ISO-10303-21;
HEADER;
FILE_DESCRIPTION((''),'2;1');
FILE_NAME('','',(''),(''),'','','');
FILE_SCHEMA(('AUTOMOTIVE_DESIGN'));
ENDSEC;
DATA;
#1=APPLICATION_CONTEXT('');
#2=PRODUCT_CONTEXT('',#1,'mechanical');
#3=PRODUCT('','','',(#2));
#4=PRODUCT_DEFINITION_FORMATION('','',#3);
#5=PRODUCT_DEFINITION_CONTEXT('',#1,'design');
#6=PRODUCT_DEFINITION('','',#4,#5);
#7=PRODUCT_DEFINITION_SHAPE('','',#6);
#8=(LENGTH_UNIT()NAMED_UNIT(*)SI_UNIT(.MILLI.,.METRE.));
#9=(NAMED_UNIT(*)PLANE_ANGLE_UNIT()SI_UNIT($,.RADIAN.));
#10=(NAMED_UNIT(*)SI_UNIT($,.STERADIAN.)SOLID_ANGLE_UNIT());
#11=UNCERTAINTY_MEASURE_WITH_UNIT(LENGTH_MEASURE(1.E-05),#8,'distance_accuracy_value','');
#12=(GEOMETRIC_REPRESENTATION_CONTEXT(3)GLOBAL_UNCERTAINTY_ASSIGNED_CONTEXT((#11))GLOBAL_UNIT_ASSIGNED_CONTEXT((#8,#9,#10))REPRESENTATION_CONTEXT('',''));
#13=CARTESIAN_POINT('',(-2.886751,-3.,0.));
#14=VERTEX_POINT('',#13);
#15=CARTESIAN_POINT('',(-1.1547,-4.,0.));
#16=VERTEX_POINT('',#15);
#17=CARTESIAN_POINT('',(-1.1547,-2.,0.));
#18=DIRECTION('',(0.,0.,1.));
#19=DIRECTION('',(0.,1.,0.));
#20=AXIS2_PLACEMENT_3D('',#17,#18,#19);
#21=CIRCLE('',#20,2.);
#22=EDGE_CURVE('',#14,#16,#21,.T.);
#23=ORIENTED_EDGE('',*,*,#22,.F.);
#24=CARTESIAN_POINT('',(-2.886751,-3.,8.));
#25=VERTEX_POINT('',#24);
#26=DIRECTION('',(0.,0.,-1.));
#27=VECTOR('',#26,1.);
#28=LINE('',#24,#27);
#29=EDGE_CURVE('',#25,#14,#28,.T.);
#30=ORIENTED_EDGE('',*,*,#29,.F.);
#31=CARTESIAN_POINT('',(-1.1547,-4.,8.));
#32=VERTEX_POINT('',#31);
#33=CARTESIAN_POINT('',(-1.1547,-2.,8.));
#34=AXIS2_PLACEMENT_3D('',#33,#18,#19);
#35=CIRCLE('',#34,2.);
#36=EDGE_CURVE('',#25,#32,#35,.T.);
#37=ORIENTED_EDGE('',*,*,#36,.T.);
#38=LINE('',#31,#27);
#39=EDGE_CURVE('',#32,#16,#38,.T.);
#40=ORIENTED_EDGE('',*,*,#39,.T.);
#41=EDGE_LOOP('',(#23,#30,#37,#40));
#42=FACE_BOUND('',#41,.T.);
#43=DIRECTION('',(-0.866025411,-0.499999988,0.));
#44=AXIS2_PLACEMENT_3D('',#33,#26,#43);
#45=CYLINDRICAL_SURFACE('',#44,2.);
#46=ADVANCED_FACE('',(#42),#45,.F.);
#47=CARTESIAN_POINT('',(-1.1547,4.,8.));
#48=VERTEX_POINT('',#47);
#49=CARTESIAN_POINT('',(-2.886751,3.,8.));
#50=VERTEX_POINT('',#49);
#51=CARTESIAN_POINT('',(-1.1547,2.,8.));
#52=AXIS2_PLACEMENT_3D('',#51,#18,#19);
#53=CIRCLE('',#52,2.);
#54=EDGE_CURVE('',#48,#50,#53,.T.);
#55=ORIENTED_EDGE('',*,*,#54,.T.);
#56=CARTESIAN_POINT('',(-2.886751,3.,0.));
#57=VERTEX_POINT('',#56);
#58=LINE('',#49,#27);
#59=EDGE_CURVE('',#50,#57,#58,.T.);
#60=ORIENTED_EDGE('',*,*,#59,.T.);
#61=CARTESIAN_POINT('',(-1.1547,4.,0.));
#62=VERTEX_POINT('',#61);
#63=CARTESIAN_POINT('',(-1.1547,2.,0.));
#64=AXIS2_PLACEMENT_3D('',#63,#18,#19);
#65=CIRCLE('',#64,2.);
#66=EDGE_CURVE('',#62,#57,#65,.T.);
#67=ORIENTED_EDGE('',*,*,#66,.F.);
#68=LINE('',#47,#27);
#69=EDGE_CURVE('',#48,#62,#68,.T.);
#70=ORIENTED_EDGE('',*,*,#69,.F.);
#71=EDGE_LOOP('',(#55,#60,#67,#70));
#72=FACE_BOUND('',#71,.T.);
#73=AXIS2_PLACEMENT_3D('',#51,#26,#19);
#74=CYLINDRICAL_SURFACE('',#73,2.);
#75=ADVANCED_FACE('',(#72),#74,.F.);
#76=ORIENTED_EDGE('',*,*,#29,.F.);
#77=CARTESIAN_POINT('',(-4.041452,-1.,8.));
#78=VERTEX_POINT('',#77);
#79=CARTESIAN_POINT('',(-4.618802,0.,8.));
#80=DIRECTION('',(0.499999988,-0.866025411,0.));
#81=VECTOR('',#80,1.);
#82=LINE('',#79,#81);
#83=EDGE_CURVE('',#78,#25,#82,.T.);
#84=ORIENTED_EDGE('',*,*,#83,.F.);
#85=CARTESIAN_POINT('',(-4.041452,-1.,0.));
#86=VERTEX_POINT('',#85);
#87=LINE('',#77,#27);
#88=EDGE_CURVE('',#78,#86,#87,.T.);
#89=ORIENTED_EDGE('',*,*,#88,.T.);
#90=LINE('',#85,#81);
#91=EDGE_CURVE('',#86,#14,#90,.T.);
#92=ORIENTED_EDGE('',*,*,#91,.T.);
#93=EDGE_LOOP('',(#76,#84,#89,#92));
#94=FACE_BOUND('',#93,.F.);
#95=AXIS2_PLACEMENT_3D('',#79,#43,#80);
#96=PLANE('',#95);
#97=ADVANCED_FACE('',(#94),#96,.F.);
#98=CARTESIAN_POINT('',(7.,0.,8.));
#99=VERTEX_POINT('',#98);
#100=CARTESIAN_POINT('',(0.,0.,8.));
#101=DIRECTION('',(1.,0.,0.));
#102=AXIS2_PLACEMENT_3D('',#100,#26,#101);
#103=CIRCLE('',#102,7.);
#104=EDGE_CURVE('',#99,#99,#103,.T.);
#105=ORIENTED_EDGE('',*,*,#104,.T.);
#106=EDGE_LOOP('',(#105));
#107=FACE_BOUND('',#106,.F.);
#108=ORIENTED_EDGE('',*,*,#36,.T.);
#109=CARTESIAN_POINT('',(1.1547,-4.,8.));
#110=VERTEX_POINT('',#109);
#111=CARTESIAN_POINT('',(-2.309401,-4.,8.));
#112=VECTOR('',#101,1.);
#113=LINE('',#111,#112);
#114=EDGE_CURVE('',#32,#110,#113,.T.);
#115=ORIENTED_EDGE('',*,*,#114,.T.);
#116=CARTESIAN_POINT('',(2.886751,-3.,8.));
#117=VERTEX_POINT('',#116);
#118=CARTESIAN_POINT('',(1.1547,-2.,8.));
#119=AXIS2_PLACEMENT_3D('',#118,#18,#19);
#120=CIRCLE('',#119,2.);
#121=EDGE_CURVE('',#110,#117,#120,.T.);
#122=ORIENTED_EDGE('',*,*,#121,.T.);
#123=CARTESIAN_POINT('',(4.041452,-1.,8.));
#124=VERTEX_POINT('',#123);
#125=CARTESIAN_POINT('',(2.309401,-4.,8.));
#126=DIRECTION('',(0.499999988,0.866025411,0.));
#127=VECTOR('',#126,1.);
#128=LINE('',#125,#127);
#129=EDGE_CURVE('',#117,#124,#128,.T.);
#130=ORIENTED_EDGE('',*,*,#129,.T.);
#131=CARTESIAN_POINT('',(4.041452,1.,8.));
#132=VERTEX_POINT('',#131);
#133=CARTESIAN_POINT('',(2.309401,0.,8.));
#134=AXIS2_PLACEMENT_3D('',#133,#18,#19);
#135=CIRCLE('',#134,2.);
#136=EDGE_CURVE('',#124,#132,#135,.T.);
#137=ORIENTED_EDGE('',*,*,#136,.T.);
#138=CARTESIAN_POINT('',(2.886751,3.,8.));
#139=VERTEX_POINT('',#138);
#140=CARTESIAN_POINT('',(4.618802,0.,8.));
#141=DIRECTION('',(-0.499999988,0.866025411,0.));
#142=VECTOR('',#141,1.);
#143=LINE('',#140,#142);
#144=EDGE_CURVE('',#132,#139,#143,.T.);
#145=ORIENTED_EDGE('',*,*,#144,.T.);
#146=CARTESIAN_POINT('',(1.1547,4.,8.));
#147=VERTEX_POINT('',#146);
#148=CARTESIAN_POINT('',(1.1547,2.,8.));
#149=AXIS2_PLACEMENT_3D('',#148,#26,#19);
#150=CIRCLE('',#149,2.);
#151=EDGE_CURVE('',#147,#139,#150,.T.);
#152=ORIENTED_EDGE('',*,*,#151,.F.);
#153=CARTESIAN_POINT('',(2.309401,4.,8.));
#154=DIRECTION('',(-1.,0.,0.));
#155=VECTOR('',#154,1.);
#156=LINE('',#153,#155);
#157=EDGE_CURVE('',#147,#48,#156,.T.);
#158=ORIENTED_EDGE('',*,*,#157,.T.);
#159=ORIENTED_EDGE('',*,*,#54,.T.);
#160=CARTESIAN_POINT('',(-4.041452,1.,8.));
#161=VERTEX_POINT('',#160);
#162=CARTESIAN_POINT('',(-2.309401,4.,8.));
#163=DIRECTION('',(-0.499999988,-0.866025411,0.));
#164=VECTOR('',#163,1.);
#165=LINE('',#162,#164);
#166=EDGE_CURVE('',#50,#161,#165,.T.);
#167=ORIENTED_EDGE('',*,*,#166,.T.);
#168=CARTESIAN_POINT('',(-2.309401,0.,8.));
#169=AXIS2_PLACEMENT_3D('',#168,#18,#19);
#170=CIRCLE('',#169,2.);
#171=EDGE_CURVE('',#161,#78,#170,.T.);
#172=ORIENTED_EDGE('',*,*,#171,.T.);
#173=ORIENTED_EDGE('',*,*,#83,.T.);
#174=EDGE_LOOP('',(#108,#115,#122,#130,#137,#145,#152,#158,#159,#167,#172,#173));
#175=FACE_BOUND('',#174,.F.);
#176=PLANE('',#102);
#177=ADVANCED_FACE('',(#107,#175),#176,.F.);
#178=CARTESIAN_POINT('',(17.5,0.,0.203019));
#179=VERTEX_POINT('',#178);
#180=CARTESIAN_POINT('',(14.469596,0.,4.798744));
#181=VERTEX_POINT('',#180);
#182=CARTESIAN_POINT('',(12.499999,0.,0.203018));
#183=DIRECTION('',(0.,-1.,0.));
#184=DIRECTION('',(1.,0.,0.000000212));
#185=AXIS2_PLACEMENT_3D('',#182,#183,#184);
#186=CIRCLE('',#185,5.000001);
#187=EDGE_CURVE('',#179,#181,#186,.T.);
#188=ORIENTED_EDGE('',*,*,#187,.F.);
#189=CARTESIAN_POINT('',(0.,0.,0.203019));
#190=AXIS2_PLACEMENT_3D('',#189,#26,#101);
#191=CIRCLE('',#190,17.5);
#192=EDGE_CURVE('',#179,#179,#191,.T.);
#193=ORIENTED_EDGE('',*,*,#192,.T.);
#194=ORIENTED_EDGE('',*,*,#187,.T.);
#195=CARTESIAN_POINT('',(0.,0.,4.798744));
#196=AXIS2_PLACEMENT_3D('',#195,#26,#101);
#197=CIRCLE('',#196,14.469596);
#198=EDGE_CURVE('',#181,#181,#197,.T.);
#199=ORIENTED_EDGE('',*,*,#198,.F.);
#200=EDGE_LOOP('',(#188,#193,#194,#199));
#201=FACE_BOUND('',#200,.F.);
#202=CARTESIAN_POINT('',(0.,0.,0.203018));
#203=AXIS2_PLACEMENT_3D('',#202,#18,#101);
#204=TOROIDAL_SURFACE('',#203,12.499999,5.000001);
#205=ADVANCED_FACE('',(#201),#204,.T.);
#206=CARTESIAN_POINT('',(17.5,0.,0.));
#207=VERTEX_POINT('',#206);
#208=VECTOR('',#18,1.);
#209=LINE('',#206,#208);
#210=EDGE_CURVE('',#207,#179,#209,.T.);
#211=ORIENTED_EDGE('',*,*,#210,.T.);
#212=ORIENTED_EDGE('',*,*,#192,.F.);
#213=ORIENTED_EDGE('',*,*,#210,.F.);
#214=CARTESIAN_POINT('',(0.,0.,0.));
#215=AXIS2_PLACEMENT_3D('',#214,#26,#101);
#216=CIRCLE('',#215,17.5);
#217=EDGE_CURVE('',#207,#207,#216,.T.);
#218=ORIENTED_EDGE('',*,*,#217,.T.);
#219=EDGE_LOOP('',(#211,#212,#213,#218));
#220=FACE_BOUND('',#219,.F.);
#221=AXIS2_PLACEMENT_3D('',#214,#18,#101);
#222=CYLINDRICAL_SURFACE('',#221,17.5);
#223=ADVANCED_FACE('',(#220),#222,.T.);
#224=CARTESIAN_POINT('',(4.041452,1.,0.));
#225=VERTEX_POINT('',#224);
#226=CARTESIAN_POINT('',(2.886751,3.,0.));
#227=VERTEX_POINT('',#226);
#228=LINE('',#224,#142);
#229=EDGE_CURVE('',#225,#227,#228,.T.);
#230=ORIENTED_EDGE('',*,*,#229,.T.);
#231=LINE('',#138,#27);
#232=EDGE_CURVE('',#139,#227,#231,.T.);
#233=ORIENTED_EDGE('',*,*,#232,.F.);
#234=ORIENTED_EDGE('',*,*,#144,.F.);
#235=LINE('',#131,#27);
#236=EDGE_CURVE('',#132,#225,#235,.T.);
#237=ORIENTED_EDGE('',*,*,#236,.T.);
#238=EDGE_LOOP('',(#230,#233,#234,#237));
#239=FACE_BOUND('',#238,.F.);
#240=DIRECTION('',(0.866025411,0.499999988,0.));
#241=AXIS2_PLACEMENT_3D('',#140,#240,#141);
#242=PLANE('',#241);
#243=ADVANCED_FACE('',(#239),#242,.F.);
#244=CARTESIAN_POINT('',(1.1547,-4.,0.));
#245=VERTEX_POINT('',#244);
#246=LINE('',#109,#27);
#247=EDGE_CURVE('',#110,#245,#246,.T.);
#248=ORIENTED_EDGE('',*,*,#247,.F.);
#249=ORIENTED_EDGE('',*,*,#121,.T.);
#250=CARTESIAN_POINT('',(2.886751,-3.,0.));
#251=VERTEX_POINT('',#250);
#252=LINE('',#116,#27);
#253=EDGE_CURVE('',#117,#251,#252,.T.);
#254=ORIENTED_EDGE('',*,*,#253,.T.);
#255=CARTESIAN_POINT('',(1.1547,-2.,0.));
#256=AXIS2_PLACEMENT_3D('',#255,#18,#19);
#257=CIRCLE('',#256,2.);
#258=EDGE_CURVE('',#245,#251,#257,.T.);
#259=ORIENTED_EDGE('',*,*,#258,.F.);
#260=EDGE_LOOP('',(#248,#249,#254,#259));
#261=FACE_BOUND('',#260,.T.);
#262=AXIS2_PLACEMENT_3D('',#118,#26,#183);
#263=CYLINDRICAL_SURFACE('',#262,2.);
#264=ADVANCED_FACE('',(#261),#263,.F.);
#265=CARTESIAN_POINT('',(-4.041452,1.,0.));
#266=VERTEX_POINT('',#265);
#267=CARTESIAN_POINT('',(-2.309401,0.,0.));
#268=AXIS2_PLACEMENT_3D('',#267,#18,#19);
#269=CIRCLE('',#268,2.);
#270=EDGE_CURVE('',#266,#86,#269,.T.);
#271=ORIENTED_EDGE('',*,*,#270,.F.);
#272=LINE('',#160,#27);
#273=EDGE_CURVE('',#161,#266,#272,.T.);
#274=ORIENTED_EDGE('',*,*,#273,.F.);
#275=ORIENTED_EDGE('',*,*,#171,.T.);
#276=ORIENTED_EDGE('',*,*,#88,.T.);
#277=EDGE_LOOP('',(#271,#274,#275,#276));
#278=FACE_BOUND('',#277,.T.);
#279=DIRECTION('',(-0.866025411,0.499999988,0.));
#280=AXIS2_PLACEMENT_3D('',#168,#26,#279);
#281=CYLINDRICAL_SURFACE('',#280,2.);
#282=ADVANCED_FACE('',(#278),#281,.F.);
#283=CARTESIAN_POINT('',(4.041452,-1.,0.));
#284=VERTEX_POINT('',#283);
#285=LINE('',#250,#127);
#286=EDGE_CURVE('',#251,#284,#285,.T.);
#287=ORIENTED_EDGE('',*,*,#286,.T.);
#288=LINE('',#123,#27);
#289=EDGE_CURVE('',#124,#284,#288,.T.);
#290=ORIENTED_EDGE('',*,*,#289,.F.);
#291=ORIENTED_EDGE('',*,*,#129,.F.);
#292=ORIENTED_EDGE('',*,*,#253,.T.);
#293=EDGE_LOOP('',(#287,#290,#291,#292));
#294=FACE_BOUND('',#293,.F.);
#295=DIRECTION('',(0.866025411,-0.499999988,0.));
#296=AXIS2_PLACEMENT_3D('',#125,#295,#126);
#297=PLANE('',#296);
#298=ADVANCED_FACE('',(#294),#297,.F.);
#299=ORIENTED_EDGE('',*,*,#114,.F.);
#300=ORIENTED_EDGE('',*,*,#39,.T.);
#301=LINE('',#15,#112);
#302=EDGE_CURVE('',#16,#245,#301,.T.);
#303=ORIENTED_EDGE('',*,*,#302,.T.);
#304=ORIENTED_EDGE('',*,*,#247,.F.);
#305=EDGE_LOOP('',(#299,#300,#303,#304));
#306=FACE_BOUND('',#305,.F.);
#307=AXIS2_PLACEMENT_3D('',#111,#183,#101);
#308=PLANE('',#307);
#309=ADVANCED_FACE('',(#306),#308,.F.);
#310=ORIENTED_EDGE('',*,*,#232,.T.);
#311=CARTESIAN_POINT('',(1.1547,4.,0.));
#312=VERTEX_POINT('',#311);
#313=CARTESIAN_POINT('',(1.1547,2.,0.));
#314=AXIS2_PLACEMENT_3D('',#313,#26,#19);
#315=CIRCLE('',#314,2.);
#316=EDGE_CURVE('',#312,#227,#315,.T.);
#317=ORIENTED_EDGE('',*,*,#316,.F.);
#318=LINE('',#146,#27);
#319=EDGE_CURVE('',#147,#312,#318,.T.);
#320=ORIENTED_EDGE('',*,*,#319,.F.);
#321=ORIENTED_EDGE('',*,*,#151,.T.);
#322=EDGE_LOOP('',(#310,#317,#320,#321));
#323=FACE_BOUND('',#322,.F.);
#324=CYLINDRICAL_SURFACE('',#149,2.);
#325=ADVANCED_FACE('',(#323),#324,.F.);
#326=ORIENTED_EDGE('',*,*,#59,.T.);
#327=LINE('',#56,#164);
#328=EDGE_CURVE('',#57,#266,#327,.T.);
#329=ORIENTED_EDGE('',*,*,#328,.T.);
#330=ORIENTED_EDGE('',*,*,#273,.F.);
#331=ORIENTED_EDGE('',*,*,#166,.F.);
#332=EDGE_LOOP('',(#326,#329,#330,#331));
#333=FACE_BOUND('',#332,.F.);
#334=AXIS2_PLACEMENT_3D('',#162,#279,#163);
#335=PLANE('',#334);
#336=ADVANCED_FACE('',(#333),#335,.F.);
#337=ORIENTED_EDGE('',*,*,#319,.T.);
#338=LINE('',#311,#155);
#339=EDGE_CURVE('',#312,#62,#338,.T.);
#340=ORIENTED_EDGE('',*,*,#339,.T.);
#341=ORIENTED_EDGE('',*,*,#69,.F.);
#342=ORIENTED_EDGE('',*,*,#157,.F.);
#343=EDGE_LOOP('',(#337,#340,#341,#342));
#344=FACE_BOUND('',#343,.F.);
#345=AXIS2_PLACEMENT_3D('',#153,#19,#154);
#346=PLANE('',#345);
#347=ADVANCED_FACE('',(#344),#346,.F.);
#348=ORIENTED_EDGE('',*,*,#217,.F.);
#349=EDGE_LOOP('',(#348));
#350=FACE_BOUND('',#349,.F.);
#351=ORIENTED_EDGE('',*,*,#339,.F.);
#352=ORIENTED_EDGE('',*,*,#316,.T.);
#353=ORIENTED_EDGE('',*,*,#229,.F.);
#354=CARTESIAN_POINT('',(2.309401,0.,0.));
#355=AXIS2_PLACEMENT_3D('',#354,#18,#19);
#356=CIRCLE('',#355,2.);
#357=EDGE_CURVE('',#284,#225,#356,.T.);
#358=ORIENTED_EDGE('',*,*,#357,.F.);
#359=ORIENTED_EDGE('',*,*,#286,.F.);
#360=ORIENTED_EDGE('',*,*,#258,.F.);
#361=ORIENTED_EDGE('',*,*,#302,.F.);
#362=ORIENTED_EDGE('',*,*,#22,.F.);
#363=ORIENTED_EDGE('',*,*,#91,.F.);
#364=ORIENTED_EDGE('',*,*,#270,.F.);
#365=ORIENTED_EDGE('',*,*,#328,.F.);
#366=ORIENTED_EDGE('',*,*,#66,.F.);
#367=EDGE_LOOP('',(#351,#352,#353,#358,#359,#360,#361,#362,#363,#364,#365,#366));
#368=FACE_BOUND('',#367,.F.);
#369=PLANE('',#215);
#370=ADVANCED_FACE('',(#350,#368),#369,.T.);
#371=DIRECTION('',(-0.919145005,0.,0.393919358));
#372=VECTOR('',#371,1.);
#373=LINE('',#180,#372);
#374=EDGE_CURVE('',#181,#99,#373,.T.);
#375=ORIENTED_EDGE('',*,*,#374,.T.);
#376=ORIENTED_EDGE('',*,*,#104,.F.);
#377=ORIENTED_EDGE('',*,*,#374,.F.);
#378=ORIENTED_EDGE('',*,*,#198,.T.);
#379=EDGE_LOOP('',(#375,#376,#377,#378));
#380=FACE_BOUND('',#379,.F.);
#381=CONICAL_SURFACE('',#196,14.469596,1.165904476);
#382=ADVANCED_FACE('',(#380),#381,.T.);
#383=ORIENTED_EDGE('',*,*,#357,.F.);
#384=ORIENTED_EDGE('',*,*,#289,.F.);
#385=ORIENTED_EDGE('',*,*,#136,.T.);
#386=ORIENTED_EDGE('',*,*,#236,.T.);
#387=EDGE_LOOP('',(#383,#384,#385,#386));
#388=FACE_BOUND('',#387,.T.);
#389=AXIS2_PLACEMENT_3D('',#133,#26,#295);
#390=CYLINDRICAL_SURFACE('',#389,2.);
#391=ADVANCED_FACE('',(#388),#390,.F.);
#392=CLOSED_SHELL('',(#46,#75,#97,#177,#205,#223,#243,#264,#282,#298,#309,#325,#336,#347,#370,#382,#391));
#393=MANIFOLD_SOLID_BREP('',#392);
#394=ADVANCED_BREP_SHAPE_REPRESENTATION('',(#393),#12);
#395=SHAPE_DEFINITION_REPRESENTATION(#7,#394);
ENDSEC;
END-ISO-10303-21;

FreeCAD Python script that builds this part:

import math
import FreeCAD as App
import Part
import Sketcher
Q = App.Units.Quantity


def edges_at(feature, points):
    """Names of the edges that pass closest to the given points."""
    edges = feature.Shape.Edges
    near = lambda p: min(range(len(edges)), key=lambda i: edges[i].distToShape(Part.Vertex(*p))[0])
    return sorted({f"Edge{near(p) + 1}" for p in points})


def add_polygon(sketch, points):
    """Adds a closed chain of lines whose ends are joined by coincident constraints."""
    first, n = sketch.GeometryCount, len(points)
    for a, b in zip(points, points[1:] + points[:1]):
        sketch.addGeometry(Part.LineSegment(App.Vector(*a, 0), App.Vector(*b, 0)), False)
    for i in range(n):
        sketch.addConstraint(Sketcher.Constraint("Coincident", first + i, 2, first + (i + 1) % n, 1))

doc = App.newDocument("Part")
params = doc.addObject("Spreadsheet::Sheet", "Params")
for row, (alias, value) in enumerate([
    ("sketch1_radius", "5.000001 mm"),
    ("sketch1_width", "7 mm"),
    ("sketch1_height", "8 mm"),
    ("sketch1_width2", "17.5 mm"),
    ("revolution_angle", "360 deg"),
    ("pocket1_length", "25 mm"),
    ("fillet_radius", "2 mm"),
], start=1):
    params.set(f"A{row}", alias)
    params.set(f"B{row}", "=" + value)
    params.setAlias(f"B{row}", alias)

body = doc.addObject("PartDesign::Body", "Body")

# Sketch on XZ plane
sketch1 = doc.addObject("Sketcher::SketchObject", "Sketch")
body.addObject(sketch1)
sketch1.AttachmentSupport = (doc.XZ_Plane, [""])
sketch1.MapMode = "FlatFace"
sketch1.addGeometry([
    Part.LineSegment(App.Vector(0, 8, 0), App.Vector(0, 0, 0)),  # 0
    Part.LineSegment(App.Vector(0, 0, 0), App.Vector(17.5, 0, 0)),  # 1
    Part.LineSegment(App.Vector(17.5, 0, 0), App.Vector(17.5, 0.2, 0)),  # 2
    Part.ArcOfCircle(Part.Circle(App.Vector(12.5, 0.2, 0), App.Vector(0, 0, 1), 5), math.radians(0), math.radians(67)),  # 3
    Part.LineSegment(App.Vector(14.47, 4.8, 0), App.Vector(7, 8, 0)),  # 4
    Part.LineSegment(App.Vector(7, 8, 0), App.Vector(0, 8, 0)),  # 5
], False)
sketch1.addConstraint([
    Sketcher.Constraint("Coincident", 0, 2, 1, 1),
    Sketcher.Constraint("Coincident", 1, 2, 2, 1),
    Sketcher.Constraint("Tangent", 2, 2, 3, 1),
    Sketcher.Constraint("Tangent", 3, 2, 4, 1),
    Sketcher.Constraint("Coincident", 4, 2, 5, 1),
    Sketcher.Constraint("Coincident", 5, 2, 0, 1),
    Sketcher.Constraint("Vertical", 0),
    Sketcher.Constraint("Horizontal", 1),
    Sketcher.Constraint("Vertical", 2),
    Sketcher.Constraint("Horizontal", 5),
    Sketcher.Constraint("Coincident", 0, 2, -1, 1),
    Sketcher.Constraint("Radius", 3, Q("5.000001 mm")),
    Sketcher.Constraint("DistanceX", 5, 2, 5, 1, Q("7 mm")),
    Sketcher.Constraint("DistanceY", 0, 2, 0, 1, Q("8 mm")),
    Sketcher.Constraint("DistanceX", 1, 1, 1, 2, Q("17.5 mm")),
    Sketcher.Constraint("DistanceY", 2, 1, 2, 2, Q("0.203019 mm")),
])
sketch1.setExpression("Constraints[11]", "Params.sketch1_radius")
sketch1.setExpression("Constraints[12]", "Params.sketch1_width")
sketch1.setExpression("Constraints[13]", "Params.sketch1_height")
sketch1.setExpression("Constraints[14]", "Params.sketch1_width2")
revolution = doc.addObject("PartDesign::Revolution", "Revolution")
body.addObject(revolution)
revolution.Profile = sketch1
revolution.ReferenceAxis = (sketch1, ["V_Axis"])
revolution.setExpression("Angle", "Params.revolution_angle")

# Sketch on XY plane
sketch2 = doc.addObject("Sketcher::SketchObject", "Sketch001")
body.addObject(sketch2)
sketch2.AttachmentSupport = (doc.XY_Plane, [""])
sketch2.MapMode = "FlatFace"
sketch2.AttachmentOffset = App.Placement(App.Vector(0, 0, 8), App.Rotation())
add_polygon(sketch2, [(2.3, 4), (-2.3, 4), (-4.6, 0), (-2.3, -4), (2.3, -4), (4.6, 0)])  # lines 0-5
sketch2.addConstraint([
    Sketcher.Constraint("Horizontal", 0),
    Sketcher.Constraint("Horizontal", 3),
    Sketcher.Constraint("Symmetric", 0, 2, 3, 2, -1, 1),
    Sketcher.Constraint("Symmetric", 1, 2, 4, 2, -1, 1),
    Sketcher.Constraint("PointOnObject", 1, 2, -1),
    Sketcher.Constraint("Parallel", 2, 5),
    Sketcher.Constraint("Vertical", 0, 2, 2, 2),
    Sketcher.Constraint("Angle", 1, Q("-119.999999 deg")),
    Sketcher.Constraint("DistanceY", -1, 1, 0, 2, Q("4 mm")),
    Sketcher.Constraint("DistanceX", 0, 2, 0, 1, Q("4.618802 mm")),
])
pocket1 = doc.addObject("PartDesign::Pocket", "Pocket")
body.addObject(pocket1)
pocket1.Profile = sketch2
pocket1.setExpression("Length", "Params.pocket1_length")
doc.recompute()

fillet = doc.addObject("PartDesign::Fillet", "Fillet")
body.addObject(fillet)
fillet.Base = (pocket1, edges_at(pocket1, [
    (-2.309, 4, 4),
    (-4.619, 0, 4),
    (2.309, 4, 4),
    (4.619, 0, 4),
    (-2.309, -4, 4),
    (2.309, -4, 4),
]))
fillet.setExpression("Radius", "Params.fillet_radius")

doc.recompute()
